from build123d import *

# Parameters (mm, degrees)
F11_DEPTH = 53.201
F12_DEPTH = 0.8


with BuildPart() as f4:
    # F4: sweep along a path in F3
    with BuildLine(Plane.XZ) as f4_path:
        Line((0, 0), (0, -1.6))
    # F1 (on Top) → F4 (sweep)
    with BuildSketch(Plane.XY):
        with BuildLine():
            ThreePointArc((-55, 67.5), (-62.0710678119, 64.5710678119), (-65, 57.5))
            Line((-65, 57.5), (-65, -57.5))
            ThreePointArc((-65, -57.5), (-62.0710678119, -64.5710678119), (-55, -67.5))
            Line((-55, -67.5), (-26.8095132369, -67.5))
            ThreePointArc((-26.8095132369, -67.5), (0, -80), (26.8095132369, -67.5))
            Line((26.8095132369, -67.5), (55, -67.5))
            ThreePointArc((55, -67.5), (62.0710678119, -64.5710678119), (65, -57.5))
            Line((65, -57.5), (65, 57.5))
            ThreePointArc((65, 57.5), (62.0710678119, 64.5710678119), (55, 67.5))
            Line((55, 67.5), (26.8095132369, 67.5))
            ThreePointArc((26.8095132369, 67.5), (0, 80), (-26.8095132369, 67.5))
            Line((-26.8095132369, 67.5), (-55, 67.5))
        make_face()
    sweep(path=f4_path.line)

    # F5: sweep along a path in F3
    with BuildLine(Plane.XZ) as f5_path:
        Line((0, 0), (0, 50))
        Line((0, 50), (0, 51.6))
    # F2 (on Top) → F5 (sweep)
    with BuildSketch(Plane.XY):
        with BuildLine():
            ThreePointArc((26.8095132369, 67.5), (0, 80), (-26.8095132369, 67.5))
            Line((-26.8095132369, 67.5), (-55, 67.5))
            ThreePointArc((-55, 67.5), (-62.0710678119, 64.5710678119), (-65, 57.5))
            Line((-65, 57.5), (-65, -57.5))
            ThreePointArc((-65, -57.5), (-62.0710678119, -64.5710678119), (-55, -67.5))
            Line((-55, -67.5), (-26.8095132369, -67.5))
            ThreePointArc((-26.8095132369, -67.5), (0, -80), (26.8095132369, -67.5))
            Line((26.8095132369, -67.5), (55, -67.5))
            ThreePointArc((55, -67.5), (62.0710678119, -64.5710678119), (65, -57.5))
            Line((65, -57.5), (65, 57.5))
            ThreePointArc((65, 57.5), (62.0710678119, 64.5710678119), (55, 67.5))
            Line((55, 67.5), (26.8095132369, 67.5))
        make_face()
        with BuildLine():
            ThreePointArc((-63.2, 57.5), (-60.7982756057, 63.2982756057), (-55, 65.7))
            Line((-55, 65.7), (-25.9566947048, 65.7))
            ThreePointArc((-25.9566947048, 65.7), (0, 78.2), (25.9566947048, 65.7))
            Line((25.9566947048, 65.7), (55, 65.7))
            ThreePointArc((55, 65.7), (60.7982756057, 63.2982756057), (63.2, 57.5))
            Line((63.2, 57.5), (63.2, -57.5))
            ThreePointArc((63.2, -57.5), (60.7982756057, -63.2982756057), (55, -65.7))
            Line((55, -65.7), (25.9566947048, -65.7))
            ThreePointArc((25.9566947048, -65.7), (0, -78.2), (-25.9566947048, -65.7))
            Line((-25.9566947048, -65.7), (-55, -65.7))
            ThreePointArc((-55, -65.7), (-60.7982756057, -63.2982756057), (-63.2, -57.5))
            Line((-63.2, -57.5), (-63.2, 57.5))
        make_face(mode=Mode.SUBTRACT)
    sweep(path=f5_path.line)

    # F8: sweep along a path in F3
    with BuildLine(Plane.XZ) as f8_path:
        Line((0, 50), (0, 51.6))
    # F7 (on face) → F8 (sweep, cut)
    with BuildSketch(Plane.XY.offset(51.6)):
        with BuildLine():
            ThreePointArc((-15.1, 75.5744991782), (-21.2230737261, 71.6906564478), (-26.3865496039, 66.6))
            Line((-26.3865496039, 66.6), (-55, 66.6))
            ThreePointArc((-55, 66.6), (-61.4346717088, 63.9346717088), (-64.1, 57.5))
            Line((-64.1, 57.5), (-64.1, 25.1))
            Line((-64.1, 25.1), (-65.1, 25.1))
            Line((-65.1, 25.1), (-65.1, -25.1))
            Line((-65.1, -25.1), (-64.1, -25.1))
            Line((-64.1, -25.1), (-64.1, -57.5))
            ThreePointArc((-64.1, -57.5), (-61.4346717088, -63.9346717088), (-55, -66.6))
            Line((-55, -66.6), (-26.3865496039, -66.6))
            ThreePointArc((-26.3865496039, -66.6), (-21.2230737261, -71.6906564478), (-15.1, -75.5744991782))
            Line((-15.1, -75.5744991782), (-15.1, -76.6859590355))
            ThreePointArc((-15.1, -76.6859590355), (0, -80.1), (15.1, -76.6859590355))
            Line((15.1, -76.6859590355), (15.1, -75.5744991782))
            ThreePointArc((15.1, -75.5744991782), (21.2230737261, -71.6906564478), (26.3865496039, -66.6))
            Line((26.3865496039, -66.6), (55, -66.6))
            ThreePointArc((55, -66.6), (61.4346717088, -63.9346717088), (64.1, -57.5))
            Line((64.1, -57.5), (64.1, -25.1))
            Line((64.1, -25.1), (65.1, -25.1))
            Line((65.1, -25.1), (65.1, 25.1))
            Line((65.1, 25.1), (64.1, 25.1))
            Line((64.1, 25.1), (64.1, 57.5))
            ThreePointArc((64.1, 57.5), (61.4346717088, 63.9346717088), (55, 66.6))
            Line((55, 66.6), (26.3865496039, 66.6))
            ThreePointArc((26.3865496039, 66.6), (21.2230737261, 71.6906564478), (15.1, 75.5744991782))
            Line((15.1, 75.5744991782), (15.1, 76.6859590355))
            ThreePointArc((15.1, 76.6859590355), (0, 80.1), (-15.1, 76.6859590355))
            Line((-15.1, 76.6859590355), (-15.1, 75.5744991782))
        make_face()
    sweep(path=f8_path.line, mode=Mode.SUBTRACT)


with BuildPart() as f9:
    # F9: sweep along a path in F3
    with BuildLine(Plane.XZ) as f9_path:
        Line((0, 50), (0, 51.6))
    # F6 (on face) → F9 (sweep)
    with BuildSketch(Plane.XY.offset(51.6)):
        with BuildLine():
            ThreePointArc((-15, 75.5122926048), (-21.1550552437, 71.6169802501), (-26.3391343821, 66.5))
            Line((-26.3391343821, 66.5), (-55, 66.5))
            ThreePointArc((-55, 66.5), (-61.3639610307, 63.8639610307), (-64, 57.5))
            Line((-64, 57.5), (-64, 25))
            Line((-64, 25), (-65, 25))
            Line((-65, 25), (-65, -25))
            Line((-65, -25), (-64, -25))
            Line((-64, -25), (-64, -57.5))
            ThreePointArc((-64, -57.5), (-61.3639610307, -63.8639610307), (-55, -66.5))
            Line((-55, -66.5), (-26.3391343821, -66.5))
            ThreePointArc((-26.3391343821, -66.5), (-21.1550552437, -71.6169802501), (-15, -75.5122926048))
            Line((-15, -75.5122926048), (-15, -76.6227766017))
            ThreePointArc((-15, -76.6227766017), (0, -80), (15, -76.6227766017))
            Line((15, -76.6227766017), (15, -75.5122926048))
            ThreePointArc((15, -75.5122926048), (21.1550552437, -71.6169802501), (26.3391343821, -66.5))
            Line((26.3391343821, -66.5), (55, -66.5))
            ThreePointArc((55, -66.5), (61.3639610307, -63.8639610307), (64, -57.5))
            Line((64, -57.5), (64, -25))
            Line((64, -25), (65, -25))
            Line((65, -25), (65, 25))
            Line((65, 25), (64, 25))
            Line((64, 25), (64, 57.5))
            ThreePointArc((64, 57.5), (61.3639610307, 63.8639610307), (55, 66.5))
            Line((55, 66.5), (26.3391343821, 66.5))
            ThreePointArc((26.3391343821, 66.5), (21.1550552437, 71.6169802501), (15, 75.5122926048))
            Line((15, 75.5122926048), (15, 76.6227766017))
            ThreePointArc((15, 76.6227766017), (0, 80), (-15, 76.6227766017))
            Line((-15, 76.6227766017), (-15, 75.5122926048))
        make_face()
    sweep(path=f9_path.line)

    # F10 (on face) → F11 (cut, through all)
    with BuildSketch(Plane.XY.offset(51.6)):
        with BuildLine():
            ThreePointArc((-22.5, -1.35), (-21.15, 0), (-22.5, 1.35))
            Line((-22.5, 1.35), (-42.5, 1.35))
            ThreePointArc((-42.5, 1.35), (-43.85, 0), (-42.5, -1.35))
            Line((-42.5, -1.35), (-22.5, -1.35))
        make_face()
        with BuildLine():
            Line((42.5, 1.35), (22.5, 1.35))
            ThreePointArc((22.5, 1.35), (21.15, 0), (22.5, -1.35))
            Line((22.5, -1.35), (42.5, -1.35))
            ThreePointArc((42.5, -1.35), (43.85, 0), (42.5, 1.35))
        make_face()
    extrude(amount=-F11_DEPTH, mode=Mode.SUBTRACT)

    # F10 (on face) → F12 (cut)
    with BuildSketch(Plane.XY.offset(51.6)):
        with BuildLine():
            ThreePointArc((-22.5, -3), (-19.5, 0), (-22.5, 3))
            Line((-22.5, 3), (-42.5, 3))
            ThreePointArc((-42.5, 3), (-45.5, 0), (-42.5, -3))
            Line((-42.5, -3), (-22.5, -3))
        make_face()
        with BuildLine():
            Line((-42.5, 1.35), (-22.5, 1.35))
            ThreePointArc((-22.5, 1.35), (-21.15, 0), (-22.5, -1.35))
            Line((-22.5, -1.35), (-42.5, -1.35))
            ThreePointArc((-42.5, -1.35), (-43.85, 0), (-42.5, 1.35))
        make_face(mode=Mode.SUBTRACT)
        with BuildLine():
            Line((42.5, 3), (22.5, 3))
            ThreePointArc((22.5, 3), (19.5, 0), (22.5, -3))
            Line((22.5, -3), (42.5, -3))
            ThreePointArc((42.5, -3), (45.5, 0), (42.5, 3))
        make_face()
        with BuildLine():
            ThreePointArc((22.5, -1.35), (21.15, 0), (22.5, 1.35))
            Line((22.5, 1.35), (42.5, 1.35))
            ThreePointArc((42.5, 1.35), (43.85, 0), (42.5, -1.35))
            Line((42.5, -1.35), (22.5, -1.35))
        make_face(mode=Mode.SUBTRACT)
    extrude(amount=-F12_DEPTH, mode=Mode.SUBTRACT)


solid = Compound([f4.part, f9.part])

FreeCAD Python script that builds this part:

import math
import FreeCAD as App
import Part
import Sketcher
Q = App.Units.Quantity

doc = App.newDocument("Part")
body = doc.addObject("PartDesign::Body", "Body")

# Sketch on XY plane
sketch1 = body.newObject("Sketcher::SketchObject", "Sketch")
sketch1.AttachmentSupport = (doc.getObject("XY_Plane"), [""])
sketch1.MapMode = "FlatFace"
sketch1.addGeometry(Part.ArcOfCircle(Part.Circle(App.Vector(-55, 58, 0), App.Vector(0, 0, 1), 10), math.radians(90), math.radians(180)), False)
sketch1.addGeometry(Part.LineSegment(App.Vector(-65, 58, 0), App.Vector(-65, -58, 0)), False)
sketch1.addGeometry(Part.ArcOfCircle(Part.Circle(App.Vector(-55, -58, 0), App.Vector(0, 0, 1), 10), math.radians(180), math.radians(270)), False)
sketch1.addGeometry(Part.LineSegment(App.Vector(-55, -68, 0), App.Vector(-27, -68, 0)), False)
sketch1.addGeometry(Part.ArcOfCircle(Part.Circle(App.Vector(0, -45, 0), App.Vector(0, 0, 1), 35), math.radians(-140), math.radians(-40)), False)
sketch1.addGeometry(Part.LineSegment(App.Vector(27, -68, 0), App.Vector(55, -68, 0)), False)
sketch1.addGeometry(Part.ArcOfCircle(Part.Circle(App.Vector(55, -58, 0), App.Vector(0, 0, 1), 10), math.radians(-90), math.radians(0)), False)
sketch1.addGeometry(Part.LineSegment(App.Vector(65, -58, 0), App.Vector(65, 58, 0)), False)
sketch1.addGeometry(Part.ArcOfCircle(Part.Circle(App.Vector(55, 58, 0), App.Vector(0, 0, 1), 10), math.radians(0), math.radians(90)), False)
sketch1.addGeometry(Part.LineSegment(App.Vector(55, 68, 0), App.Vector(27, 68, 0)), False)
sketch1.addGeometry(Part.ArcOfCircle(Part.Circle(App.Vector(0, 45, 0), App.Vector(0, 0, 1), 35), math.radians(40), math.radians(140)), False)
sketch1.addGeometry(Part.LineSegment(App.Vector(-27, 68, 0), App.Vector(-55, 68, 0)), False)
sketch1.addConstraint(Sketcher.Constraint("Tangent", 0, 2, 1, 1))
sketch1.addConstraint(Sketcher.Constraint("Tangent", 1, 2, 2, 1))
sketch1.addConstraint(Sketcher.Constraint("Tangent", 2, 2, 3, 1))
sketch1.addConstraint(Sketcher.Constraint("Coincident", 3, 2, 4, 1))
sketch1.addConstraint(Sketcher.Constraint("Coincident", 4, 2, 5, 1))
sketch1.addConstraint(Sketcher.Constraint("Tangent", 5, 2, 6, 1))
sketch1.addConstraint(Sketcher.Constraint("Tangent", 6, 2, 7, 1))
sketch1.addConstraint(Sketcher.Constraint("Tangent", 7, 2, 8, 1))
sketch1.addConstraint(Sketcher.Constraint("Tangent", 8, 2, 9, 1))
sketch1.addConstraint(Sketcher.Constraint("Coincident", 9, 2, 10, 1))
sketch1.addConstraint(Sketcher.Constraint("Coincident", 10, 2, 11, 1))
sketch1.addConstraint(Sketcher.Constraint("Tangent", 11, 2, 0, 1))
sketch1.addConstraint(Sketcher.Constraint("Vertical", 1))
sketch1.addConstraint(Sketcher.Constraint("Horizontal", 3))
sketch1.addConstraint(Sketcher.Constraint("Horizontal", 5))
sketch1.addConstraint(Sketcher.Constraint("Vertical", 7))
sketch1.addConstraint(Sketcher.Constraint("Horizontal", 9))
sketch1.addConstraint(Sketcher.Constraint("Horizontal", 11))
sketch1.addConstraint(Sketcher.Constraint("Equal", 0, 2))
sketch1.addConstraint(Sketcher.Constraint("Equal", 2, 6))
sketch1.addConstraint(Sketcher.Constraint("Equal", 6, 8))
sketch1.addConstraint(Sketcher.Constraint("Equal", 4, 10))
sketch1.addConstraint(Sketcher.Constraint("Symmetric", 0, 3, 6, 3, -1, 1))
sketch1.addConstraint(Sketcher.Constraint("Symmetric", 4, 3, 10, 3, -1, 1))
sketch1.addConstraint(Sketcher.Constraint("Symmetric", 3, 2, 4, 2, -2))
sketch1.addConstraint(Sketcher.Constraint("Horizontal", 0, 3, 8, 3))
sketch1.addConstraint(Sketcher.Constraint("Radius", 0, Q("10 mm")))
sketch1.addConstraint(Sketcher.Constraint("Radius", 4, Q("35 mm")))
sketch1.addConstraint(Sketcher.Constraint("DistanceY", 1, 2, 1, 1, Q("115 mm")))
sketch1.addConstraint(Sketcher.Constraint("DistanceX", 0, 3, -1, 1, Q("55 mm")))
sketch1.addConstraint(Sketcher.Constraint("DistanceY", 4, 3, -1, 1, Q("45 mm")))

# Sketch on XZ plane
sketch2 = body.newObject("Sketcher::SketchObject", "Sketch001")
sketch2.AttachmentSupport = (doc.getObject("XZ_Plane"), [""])
sketch2.MapMode = "FlatFace"
sketch2.addGeometry(Part.LineSegment(App.Vector(0, 0, 0), App.Vector(0, -1.6, 0)), False)
sketch2.addConstraint(Sketcher.Constraint("Vertical", 0))
sketch2.addConstraint(Sketcher.Constraint("Coincident", 0, 1, -1, 1))
sketch2.addConstraint(Sketcher.Constraint("DistanceY", 0, 2, 0, 1, Q("1.6 mm")))
doc.recompute()

additivepipe = body.newObject("PartDesign::AdditivePipe", "AdditivePipe")
additivepipe.Profile = sketch1
additivepipe.Spine = (sketch2, ["Edge1"])

# Sketch on XY plane
sketch3 = body.newObject("Sketcher::SketchObject", "Sketch002")
sketch3.AttachmentSupport = (doc.getObject("XY_Plane"), [""])
sketch3.MapMode = "FlatFace"
sketch3.addGeometry(Part.ArcOfCircle(Part.Circle(App.Vector(0, 45, 0), App.Vector(0, 0, 1), 35), math.radians(40), math.radians(140)), False)
sketch3.addGeometry(Part.LineSegment(App.Vector(-27, 68, 0), App.Vector(-55, 68, 0)), False)
sketch3.addGeometry(Part.ArcOfCircle(Part.Circle(App.Vector(-55, 58, 0), App.Vector(0, 0, 1), 10), math.radians(90), math.radians(180)), False)
sketch3.addGeometry(Part.LineSegment(App.Vector(-65, 58, 0), App.Vector(-65, -58, 0)), False)
sketch3.addGeometry(Part.ArcOfCircle(Part.Circle(App.Vector(-55, -58, 0), App.Vector(0, 0, 1), 10), math.radians(180), math.radians(270)), False)
sketch3.addGeometry(Part.LineSegment(App.Vector(-55, -68, 0), App.Vector(-27, -68, 0)), False)
sketch3.addGeometry(Part.ArcOfCircle(Part.Circle(App.Vector(0, -45, 0), App.Vector(0, 0, 1), 35), math.radians(-140), math.radians(-40)), False)
sketch3.addGeometry(Part.LineSegment(App.Vector(27, -68, 0), App.Vector(55, -68, 0)), False)
sketch3.addGeometry(Part.ArcOfCircle(Part.Circle(App.Vector(55, -58, 0), App.Vector(0, 0, 1), 10), math.radians(-90), math.radians(0)), False)
sketch3.addGeometry(Part.LineSegment(App.Vector(65, -58, 0), App.Vector(65, 58, 0)), False)
sketch3.addGeometry(Part.ArcOfCircle(Part.Circle(App.Vector(55, 58, 0), App.Vector(0, 0, 1), 10), math.radians(0), math.radians(90)), False)
sketch3.addGeometry(Part.LineSegment(App.Vector(55, 68, 0), App.Vector(27, 68, 0)), False)
sketch3.addGeometry(Part.LineSegment(App.Vector(-63, -58, 0), App.Vector(-63, 58, 0)), False)
sketch3.addGeometry(Part.ArcOfCircle(Part.Circle(App.Vector(-55, 58, 0), App.Vector(0, 0, 1), 8), math.radians(90), math.radians(180)), False)
sketch3.addGeometry(Part.LineSegment(App.Vector(-55, 66, 0), App.Vector(-26, 66, 0)), False)
sketch3.addGeometry(Part.ArcOfCircle(Part.Circle(App.Vector(0, 45, 0), App.Vector(0, 0, 1), 33), math.radians(39), math.radians(141)), False)
sketch3.addGeometry(Part.LineSegment(App.Vector(26, 66, 0), App.Vector(55, 66, 0)), False)
sketch3.addGeometry(Part.ArcOfCircle(Part.Circle(App.Vector(55, 58, 0), App.Vector(0, 0, 1), 8), math.radians(0), math.radians(90)), False)
sketch3.addGeometry(Part.LineSegment(App.Vector(63, 58, 0), App.Vector(63, -58, 0)), False)
sketch3.addGeometry(Part.ArcOfCircle(Part.Circle(App.Vector(55, -58, 0), App.Vector(0, 0, 1), 8), math.radians(-90), math.radians(0)), False)
sketch3.addGeometry(Part.LineSegment(App.Vector(55, -66, 0), App.Vector(26, -66, 0)), False)
sketch3.addGeometry(Part.ArcOfCircle(Part.Circle(App.Vector(0, -45, 0), App.Vector(0, 0, 1), 33), math.radians(-141), math.radians(-39)), False)
sketch3.addGeometry(Part.LineSegment(App.Vector(-26, -66, 0), App.Vector(-55, -66, 0)), False)
sketch3.addGeometry(Part.ArcOfCircle(Part.Circle(App.Vector(-55, -58, 0), App.Vector(0, 0, 1), 8), math.radians(180), math.radians(270)), False)
sketch3.addConstraint(Sketcher.Constraint("Coincident", 0, 2, 1, 1))
sketch3.addConstraint(Sketcher.Constraint("Tangent", 1, 2, 2, 1))
sketch3.addConstraint(Sketcher.Constraint("Tangent", 2, 2, 3, 1))
sketch3.addConstraint(Sketcher.Constraint("Tangent", 3, 2, 4, 1))
sketch3.addConstraint(Sketcher.Constraint("Tangent", 4, 2, 5, 1))
sketch3.addConstraint(Sketcher.Constraint("Coincident", 5, 2, 6, 1))
sketch3.addConstraint(Sketcher.Constraint("Coincident", 6, 2, 7, 1))
sketch3.addConstraint(Sketcher.Constraint("Tangent", 7, 2, 8, 1))
sketch3.addConstraint(Sketcher.Constraint("Tangent", 8, 2, 9, 1))
sketch3.addConstraint(Sketcher.Constraint("Tangent", 9, 2, 10, 1))
sketch3.addConstraint(Sketcher.Constraint("Tangent", 10, 2, 11, 1))
sketch3.addConstraint(Sketcher.Constraint("Coincident", 11, 2, 0, 1))
sketch3.addConstraint(Sketcher.Constraint("Tangent", 12, 2, 13, 2))
sketch3.addConstraint(Sketcher.Constraint("Tangent", 13, 1, 14, 1))
sketch3.addConstraint(Sketcher.Constraint("Coincident", 14, 2, 15, 2))
sketch3.addConstraint(Sketcher.Constraint("Coincident", 15, 1, 16, 1))
sketch3.addConstraint(Sketcher.Constraint("Tangent", 16, 2, 17, 2))
sketch3.addConstraint(Sketcher.Constraint("Tangent", 17, 1, 18, 1))
sketch3.addConstraint(Sketcher.Constraint("Tangent", 18, 2, 19, 2))
sketch3.addConstraint(Sketcher.Constraint("Tangent", 19, 1, 20, 1))
sketch3.addConstraint(Sketcher.Constraint("Coincident", 20, 2, 21, 2))
sketch3.addConstraint(Sketcher.Constraint("Coincident", 21, 1, 22, 1))
sketch3.addConstraint(Sketcher.Constraint("Tangent", 22, 2, 23, 2))
sketch3.addConstraint(Sketcher.Constraint("Tangent", 23, 1, 12, 1))
sketch3.addConstraint(Sketcher.Constraint("Horizontal", 1))
sketch3.addConstraint(Sketcher.Constraint("Vertical", 3))
sketch3.addConstraint(Sketcher.Constraint("Horizontal", 5))
sketch3.addConstraint(Sketcher.Constraint("Horizontal", 7))
sketch3.addConstraint(Sketcher.Constraint("Vertical", 9))
sketch3.addConstraint(Sketcher.Constraint("Horizontal", 11))
sketch3.addConstraint(Sketcher.Constraint("Vertical", 12))
sketch3.addConstraint(Sketcher.Constraint("Horizontal", 14))
sketch3.addConstraint(Sketcher.Constraint("Horizontal", 16))
sketch3.addConstraint(Sketcher.Constraint("Vertical", 18))
sketch3.addConstraint(Sketcher.Constraint("Horizontal", 20))
sketch3.addConstraint(Sketcher.Constraint("Horizontal", 22))
sketch3.addConstraint(Sketcher.Constraint("Coincident", 13, 3, 2, 3))
sketch3.addConstraint(Sketcher.Constraint("Coincident", 15, 3, 0, 3))
sketch3.addConstraint(Sketcher.Constraint("Coincident", 17, 3, 10, 3))
sketch3.addConstraint(Sketcher.Constraint("Coincident", 19, 3, 8, 3))
sketch3.addConstraint(Sketcher.Constraint("Coincident", 21, 3, 6, 3))
sketch3.addConstraint(Sketcher.Constraint("Coincident", 23, 3, 4, 3))
sketch3.addConstraint(Sketcher.Constraint("Equal", 2, 4))
sketch3.addConstraint(Sketcher.Constraint("Equal", 0, 6))
sketch3.addConstraint(Sketcher.Constraint("Equal", 4, 8))
sketch3.addConstraint(Sketcher.Constraint("Equal", 8, 10))
sketch3.addConstraint(Sketcher.Constraint("Equal", 13, 17))
sketch3.addConstraint(Sketcher.Constraint("Equal", 15, 21))
sketch3.addConstraint(Sketcher.Constraint("Symmetric", 0, 3, 6, 3, -1, 1))
sketch3.addConstraint(Sketcher.Constraint("Symmetric", 2, 3, 8, 3, -1, 1))
sketch3.addConstraint(Sketcher.Constraint("Symmetric", 5, 2, 6, 2, -2))
sketch3.addConstraint(Sketcher.Constraint("Horizontal", 2, 3, 10, 3))
sketch3.addConstraint(Sketcher.Constraint("Radius", 0, Q("35 mm")))
sketch3.addConstraint(Sketcher.Constraint("Radius", 2, Q("10 mm")))
sketch3.addConstraint(Sketcher.Constraint("Radius", 13, Q("8.2 mm")))
sketch3.addConstraint(Sketcher.Constraint("Radius", 15, Q("33.2 mm")))
sketch3.addConstraint(Sketcher.Constraint("DistanceY", 3, 2, 3, 1, Q("115 mm")))
sketch3.addConstraint(Sketcher.Constraint("DistanceY", -1, 1, 0, 3, Q("45 mm")))
sketch3.addConstraint(Sketcher.Constraint("DistanceX", 2, 3, -1, 1, Q("55 mm")))

# Sketch on XZ plane
sketch4 = body.newObject("Sketcher::SketchObject", "Sketch003")
sketch4.AttachmentSupport = (doc.getObject("XZ_Plane"), [""])
sketch4.MapMode = "FlatFace"
sketch4.addGeometry(Part.LineSegment(App.Vector(0, 0, 0), App.Vector(0, 52, 0)), False)
sketch4.addConstraint(Sketcher.Constraint("Vertical", 0))
sketch4.addConstraint(Sketcher.Constraint("Coincident", 0, 1, -1, 1))
sketch4.addConstraint(Sketcher.Constraint("DistanceY", 0, 1, 0, 2, Q("51.6 mm")))
doc.recompute()

additivepipe2 = body.newObject("PartDesign::AdditivePipe", "AdditivePipe001")
additivepipe2.Profile = sketch3
additivepipe2.Spine = (sketch4, ["Edge1"])

# Sketch on XY plane
sketch5 = body.newObject("Sketcher::SketchObject", "Sketch004")
sketch5.AttachmentSupport = (doc.getObject("XY_Plane"), [""])
sketch5.MapMode = "FlatFace"
sketch5.AttachmentOffset = App.Placement(App.Vector(0, 0, 51.6), App.Rotation())
sketch5.addGeometry(Part.ArcOfCircle(Part.Circle(App.Vector(0, 45, 0), App.Vector(0, 0, 1), 34.1), math.radians(116), math.radians(141)), False)
sketch5.addGeometry(Part.LineSegment(App.Vector(-26.4, 66.6, 0), App.Vector(-55, 66.6, 0)), False)
sketch5.addGeometry(Part.ArcOfCircle(Part.Circle(App.Vector(-55, 57.5, 0), App.Vector(0, 0, 1), 9.1), math.radians(90), math.radians(180)), False)
sketch5.addGeometry(Part.LineSegment(App.Vector(-64.1, 57.5, 0), App.Vector(-64.1, 25.1, 0)), False)
sketch5.addGeometry(Part.LineSegment(App.Vector(-64.1, 25.1, 0), App.Vector(-65.1, 25.1, 0)), False)
sketch5.addGeometry(Part.LineSegment(App.Vector(-65.1, 25.1, 0), App.Vector(-65.1, -25.1, 0)), False)
sketch5.addGeometry(Part.LineSegment(App.Vector(-65.1, -25.1, 0), App.Vector(-64.1, -25.1, 0)), False)
sketch5.addGeometry(Part.LineSegment(App.Vector(-64.1, -25.1, 0), App.Vector(-64.1, -57.5, 0)), False)
sketch5.addGeometry(Part.ArcOfCircle(Part.Circle(App.Vector(-55, -57.5, 0), App.Vector(0, 0, 1), 9.1), math.radians(180), math.radians(270)), False)
sketch5.addGeometry(Part.LineSegment(App.Vector(-55, -66.6, 0), App.Vector(-26.4, -66.6, 0)), False)
sketch5.addGeometry(Part.ArcOfCircle(Part.Circle(App.Vector(0, -45, 0), App.Vector(0, 0, 1), 34.1), math.radians(-141), math.radians(-116)), False)
sketch5.addGeometry(Part.LineSegment(App.Vector(-15.1, -75.6, 0), App.Vector(-15.1, -76.7, 0)), False)
sketch5.addGeometry(Part.ArcOfCircle(Part.Circle(App.Vector(0, -45, 0), App.Vector(0, 0, 1), 35.1), math.radians(-115), math.radians(-65)), False)
sketch5.addGeometry(Part.LineSegment(App.Vector(15.1, -76.7, 0), App.Vector(15.1, -75.6, 0)), False)
sketch5.addGeometry(Part.ArcOfCircle(Part.Circle(App.Vector(0, -45, 0), App.Vector(0, 0, 1), 34.1), math.radians(-64), math.radians(-39)), False)
sketch5.addGeometry(Part.LineSegment(App.Vector(26.4, -66.6, 0), App.Vector(55, -66.6, 0)), False)
sketch5.addGeometry(Part.ArcOfCircle(Part.Circle(App.Vector(55, -57.5, 0), App.Vector(0, 0, 1), 9.1), math.radians(-90), math.radians(0)), False)
sketch5.addGeometry(Part.LineSegment(App.Vector(64.1, -57.5, 0), App.Vector(64.1, -25.1, 0)), False)
sketch5.addGeometry(Part.LineSegment(App.Vector(64.1, -25.1, 0), App.Vector(65.1, -25.1, 0)), False)
sketch5.addGeometry(Part.LineSegment(App.Vector(65.1, -25.1, 0), App.Vector(65.1, 25.1, 0)), False)
sketch5.addGeometry(Part.LineSegment(App.Vector(65.1, 25.1, 0), App.Vector(64.1, 25.1, 0)), False)
sketch5.addGeometry(Part.LineSegment(App.Vector(64.1, 25.1, 0), App.Vector(64.1, 57.5, 0)), False)
sketch5.addGeometry(Part.ArcOfCircle(Part.Circle(App.Vector(55, 57.5, 0), App.Vector(0, 0, 1), 9.1), math.radians(0), math.radians(90)), False)
sketch5.addGeometry(Part.LineSegment(App.Vector(55, 66.6, 0), App.Vector(26.4, 66.6, 0)), False)
sketch5.addGeometry(Part.ArcOfCircle(Part.Circle(App.Vector(0, 45, 0), App.Vector(0, 0, 1), 34.1), math.radians(39), math.radians(64)), False)
sketch5.addGeometry(Part.LineSegment(App.Vector(15.1, 75.6, 0), App.Vector(15.1, 76.7, 0)), False)
sketch5.addGeometry(Part.ArcOfCircle(Part.Circle(App.Vector(0, 45, 0), App.Vector(0, 0, 1), 35.1), math.radians(65), math.radians(115)), False)
sketch5.addGeometry(Part.LineSegment(App.Vector(-15.1, 76.7, 0), App.Vector(-15.1, 75.6, 0)), False)
sketch5.addConstraint(Sketcher.Constraint("Coincident", 0, 2, 1, 1))
sketch5.addConstraint(Sketcher.Constraint("Tangent", 1, 2, 2, 1))
sketch5.addConstraint(Sketcher.Constraint("Tangent", 2, 2, 3, 1))
sketch5.addConstraint(Sketcher.Constraint("Coincident", 3, 2, 4, 1))
sketch5.addConstraint(Sketcher.Constraint("Coincident", 4, 2, 5, 1))
sketch5.addConstraint(Sketcher.Constraint("Coincident", 5, 2, 6, 1))
sketch5.addConstraint(Sketcher.Constraint("Coincident", 6, 2, 7, 1))
sketch5.addConstraint(Sketcher.Constraint("Tangent", 7, 2, 8, 1))
sketch5.addConstraint(Sketcher.Constraint("Tangent", 8, 2, 9, 1))
sketch5.addConstraint(Sketcher.Constraint("Coincident", 9, 2, 10, 1))
sketch5.addConstraint(Sketcher.Constraint("Coincident", 10, 2, 11, 1))
sketch5.addConstraint(Sketcher.Constraint("Coincident", 11, 2, 12, 1))
sketch5.addConstraint(Sketcher.Constraint("Coincident", 12, 2, 13, 1))
sketch5.addConstraint(Sketcher.Constraint("Coincident", 13, 2, 14, 1))
sketch5.addConstraint(Sketcher.Constraint("Coincident", 14, 2, 15, 1))
sketch5.addConstraint(Sketcher.Constraint("Tangent", 15, 2, 16, 1))
sketch5.addConstraint(Sketcher.Constraint("Tangent", 16, 2, 17, 1))
sketch5.addConstraint(Sketcher.Constraint("Coincident", 17, 2, 18, 1))
sketch5.addConstraint(Sketcher.Constraint("Coincident", 18, 2, 19, 1))
sketch5.addConstraint(Sketcher.Constraint("Coincident", 19, 2, 20, 1))
sketch5.addConstraint(Sketcher.Constraint("Coincident", 20, 2, 21, 1))
sketch5.addConstraint(Sketcher.Constraint("Tangent", 21, 2, 22, 1))
sketch5.addConstraint(Sketcher.Constraint("Tangent", 22, 2, 23, 1))
sketch5.addConstraint(Sketcher.Constraint("Coincident", 23, 2, 24, 1))
sketch5.addConstraint(Sketcher.Constraint("Coincident", 24, 2, 25, 1))
sketch5.addConstraint(Sketcher.Constraint("Coincident", 25, 2, 26, 1))
sketch5.addConstraint(Sketcher.Constraint("Coincident", 26, 2, 27, 1))
sketch5.addConstraint(Sketcher.Constraint("Coincident", 27, 2, 0, 1))
sketch5.addConstraint(Sketcher.Constraint("Horizontal", 1))
sketch5.addConstraint(Sketcher.Constraint("Vertical", 3))
sketch5.addConstraint(Sketcher.Constraint("Horizontal", 4))
sketch5.addConstraint(Sketcher.Constraint("Vertical", 5))
sketch5.addConstraint(Sketcher.Constraint("Horizontal", 6))
sketch5.addConstraint(Sketcher.Constraint("Vertical", 7))
sketch5.addConstraint(Sketcher.Constraint("Horizontal", 9))
sketch5.addConstraint(Sketcher.Constraint("Vertical", 11))
sketch5.addConstraint(Sketcher.Constraint("Vertical", 13))
sketch5.addConstraint(Sketcher.Constraint("Horizontal", 15))
sketch5.addConstraint(Sketcher.Constraint("Vertical", 17))
sketch5.addConstraint(Sketcher.Constraint("Horizontal", 18))
sketch5.addConstraint(Sketcher.Constraint("Vertical", 19))
sketch5.addConstraint(Sketcher.Constraint("Horizontal", 20))
sketch5.addConstraint(Sketcher.Constraint("Vertical", 21))
sketch5.addConstraint(Sketcher.Constraint("Horizontal", 23))
sketch5.addConstraint(Sketcher.Constraint("Vertical", 25))
sketch5.addConstraint(Sketcher.Constraint("Vertical", 27))
sketch5.addConstraint(Sketcher.Constraint("Coincident", 12, 3, 10, 3))
sketch5.addConstraint(Sketcher.Constraint("Coincident", 14, 3, 10, 3))
sketch5.addConstraint(Sketcher.Constraint("Coincident", 24, 3, 0, 3))
sketch5.addConstraint(Sketcher.Constraint("Coincident", 26, 3, 0, 3))
sketch5.addConstraint(Sketcher.Constraint("Equal", 2, 8))
sketch5.addConstraint(Sketcher.Constraint("Equal", 0, 10))
sketch5.addConstraint(Sketcher.Constraint("Equal", 10, 14))
sketch5.addConstraint(Sketcher.Constraint("Equal", 8, 16))
sketch5.addConstraint(Sketcher.Constraint("Equal", 16, 22))
sketch5.addConstraint(Sketcher.Constraint("Equal", 14, 24))
sketch5.addConstraint(Sketcher.Constraint("Equal", 12, 26))
sketch5.addConstraint(Sketcher.Constraint("Symmetric", 0, 3, 10, 3, -1, 1))
sketch5.addConstraint(Sketcher.Constraint("Symmetric", 2, 3, 16, 3, -1, 1))
sketch5.addConstraint(Sketcher.Constraint("Symmetric", 8, 3, 22, 3, -1, 1))
sketch5.addConstraint(Sketcher.Constraint("Symmetric", 4, 2, 18, 2, -1, 1))
sketch5.addConstraint(Sketcher.Constraint("Symmetric", 8, 3, 16, 3, -2))
sketch5.addConstraint(Sketcher.Constraint("Symmetric", 11, 2, 12, 2, -2))
sketch5.addConstraint(Sketcher.Constraint("Horizontal", 6, 2, 17, 2))
sketch5.addConstraint(Sketcher.Constraint("Horizontal", 4, 2, 19, 2))
sketch5.addConstraint(Sketcher.Constraint("Horizontal", 25, 2, 26, 2))
sketch5.addConstraint(Sketcher.Constraint("Vertical", 13, 2, 24, 2))
sketch5.addConstraint(Sketcher.Constraint("Radius", 0, Q("34.1 mm")))
sketch5.addConstraint(Sketcher.Constraint("Radius", 2, Q("9.1 mm")))
sketch5.addConstraint(Sketcher.Constraint("Radius", 12, Q("35.1 mm")))
sketch5.addConstraint(Sketcher.Constraint("DistanceX", 4, 2, 4, 1, Q("1 mm")))
sketch5.addConstraint(Sketcher.Constraint("DistanceY", 3, 2, 3, 1, Q("32.4 mm")))
sketch5.addConstraint(Sketcher.Constraint("DistanceY", 5, 2, 5, 1, Q("50.2 mm")))
sketch5.addConstraint(Sketcher.Constraint("DistanceY", -1, 1, 0, 3, Q("45 mm")))
sketch5.addConstraint(Sketcher.Constraint("DistanceX", 2, 3, -1, 1, Q("55 mm")))
sketch5.addConstraint(Sketcher.Constraint("DistanceX", 13, 2, 16, 2, Q("49 mm")))

# Sketch on XZ plane
sketch6 = body.newObject("Sketcher::SketchObject", "Sketch005")
sketch6.AttachmentSupport = (doc.getObject("XZ_Plane"), [""])
sketch6.MapMode = "FlatFace"
sketch6.addGeometry(Part.LineSegment(App.Vector(0, 50, 0), App.Vector(0, 51.6, 0)), False)
sketch6.addConstraint(Sketcher.Constraint("Vertical", 0))
sketch6.addConstraint(Sketcher.Constraint("PointOnObject", 0, 1, -2))
sketch6.addConstraint(Sketcher.Constraint("DistanceY", 0, 1, 0, 2, Q("1.6 mm")))
sketch6.addConstraint(Sketcher.Constraint("DistanceY", -1, 1, 0, 1, Q("50 mm")))
doc.recompute()

subtractivepipe = body.newObject("PartDesign::SubtractivePipe", "SubtractivePipe")
subtractivepipe.Profile = sketch5
subtractivepipe.Spine = (sketch6, ["Edge1"])
body2 = doc.addObject("PartDesign::Body", "Body001")

# Sketch on XY plane
sketch7 = body2.newObject("Sketcher::SketchObject", "Sketch006")
sketch7.AttachmentSupport = (doc.getObject("XY_Plane001"), [""])
sketch7.MapMode = "FlatFace"
sketch7.AttachmentOffset = App.Placement(App.Vector(0, 0, 51.6), App.Rotation())
sketch7.addGeometry(Part.ArcOfCircle(Part.Circle(App.Vector(0, 45, 0), App.Vector(0, 0, 1), 34), math.radians(116), math.radians(141)), False)
sketch7.addGeometry(Part.LineSegment(App.Vector(-26.3, 66.5, 0), App.Vector(-55, 66.5, 0)), False)
sketch7.addGeometry(Part.ArcOfCircle(Part.Circle(App.Vector(-55, 57.5, 0), App.Vector(0, 0, 1), 9), math.radians(90), math.radians(180)), False)
sketch7.addGeometry(Part.LineSegment(App.Vector(-64, 57.5, 0), App.Vector(-64, 25, 0)), False)
sketch7.addGeometry(Part.LineSegment(App.Vector(-64, 25, 0), App.Vector(-65, 25, 0)), False)
sketch7.addGeometry(Part.LineSegment(App.Vector(-65, 25, 0), App.Vector(-65, -25, 0)), False)
sketch7.addGeometry(Part.LineSegment(App.Vector(-65, -25, 0), App.Vector(-64, -25, 0)), False)
sketch7.addGeometry(Part.LineSegment(App.Vector(-64, -25, 0), App.Vector(-64, -57.5, 0)), False)
sketch7.addGeometry(Part.ArcOfCircle(Part.Circle(App.Vector(-55, -57.5, 0), App.Vector(0, 0, 1), 9), math.radians(180), math.radians(270)), False)
sketch7.addGeometry(Part.LineSegment(App.Vector(-55, -66.5, 0), App.Vector(-26.3, -66.5, 0)), False)
sketch7.addGeometry(Part.ArcOfCircle(Part.Circle(App.Vector(0, -45, 0), App.Vector(0, 0, 1), 34), math.radians(-141), math.radians(-116)), False)
sketch7.addGeometry(Part.LineSegment(App.Vector(-15, -75.5, 0), App.Vector(-15, -76.6, 0)), False)
sketch7.addGeometry(Part.ArcOfCircle(Part.Circle(App.Vector(0, -45, 0), App.Vector(0, 0, 1), 35), math.radians(-115), math.radians(-65)), False)
sketch7.addGeometry(Part.LineSegment(App.Vector(15, -76.6, 0), App.Vector(15, -75.5, 0)), False)
sketch7.addGeometry(Part.ArcOfCircle(Part.Circle(App.Vector(0, -45, 0), App.Vector(0, 0, 1), 34), math.radians(-64), math.radians(-39)), False)
sketch7.addGeometry(Part.LineSegment(App.Vector(26.3, -66.5, 0), App.Vector(55, -66.5, 0)), False)
sketch7.addGeometry(Part.ArcOfCircle(Part.Circle(App.Vector(55, -57.5, 0), App.Vector(0, 0, 1), 9), math.radians(-90), math.radians(0)), False)
sketch7.addGeometry(Part.LineSegment(App.Vector(64, -57.5, 0), App.Vector(64, -25, 0)), False)
sketch7.addGeometry(Part.LineSegment(App.Vector(64, -25, 0), App.Vector(65, -25, 0)), False)
sketch7.addGeometry(Part.LineSegment(App.Vector(65, -25, 0), App.Vector(65, 25, 0)), False)
sketch7.addGeometry(Part.LineSegment(App.Vector(65, 25, 0), App.Vector(64, 25, 0)), False)
sketch7.addGeometry(Part.LineSegment(App.Vector(64, 25, 0), App.Vector(64, 57.5, 0)), False)
sketch7.addGeometry(Part.ArcOfCircle(Part.Circle(App.Vector(55, 57.5, 0), App.Vector(0, 0, 1), 9), math.radians(0), math.radians(90)), False)
sketch7.addGeometry(Part.LineSegment(App.Vector(55, 66.5, 0), App.Vector(26.3, 66.5, 0)), False)
sketch7.addGeometry(Part.ArcOfCircle(Part.Circle(App.Vector(0, 45, 0), App.Vector(0, 0, 1), 34), math.radians(39), math.radians(64)), False)
sketch7.addGeometry(Part.LineSegment(App.Vector(15, 75.5, 0), App.Vector(15, 76.6, 0)), False)
sketch7.addGeometry(Part.ArcOfCircle(Part.Circle(App.Vector(0, 45, 0), App.Vector(0, 0, 1), 35), math.radians(65), math.radians(115)), False)
sketch7.addGeometry(Part.LineSegment(App.Vector(-15, 76.6, 0), App.Vector(-15, 75.5, 0)), False)
sketch7.addConstraint(Sketcher.Constraint("Coincident", 0, 2, 1, 1))
sketch7.addConstraint(Sketcher.Constraint("Tangent", 1, 2, 2, 1))
sketch7.addConstraint(Sketcher.Constraint("Tangent", 2, 2, 3, 1))
sketch7.addConstraint(Sketcher.Constraint("Coincident", 3, 2, 4, 1))
sketch7.addConstraint(Sketcher.Constraint("Coincident", 4, 2, 5, 1))
sketch7.addConstraint(Sketcher.Constraint("Coincident", 5, 2, 6, 1))
sketch7.addConstraint(Sketcher.Constraint("Coincident", 6, 2, 7, 1))
sketch7.addConstraint(Sketcher.Constraint("Tangent", 7, 2, 8, 1))
sketch7.addConstraint(Sketcher.Constraint("Tangent", 8, 2, 9, 1))
sketch7.addConstraint(Sketcher.Constraint("Coincident", 9, 2, 10, 1))
sketch7.addConstraint(Sketcher.Constraint("Coincident", 10, 2, 11, 1))
sketch7.addConstraint(Sketcher.Constraint("Coincident", 11, 2, 12, 1))
sketch7.addConstraint(Sketcher.Constraint("Coincident", 12, 2, 13, 1))
sketch7.addConstraint(Sketcher.Constraint("Coincident", 13, 2, 14, 1))
sketch7.addConstraint(Sketcher.Constraint("Coincident", 14, 2, 15, 1))
sketch7.addConstraint(Sketcher.Constraint("Tangent", 15, 2, 16, 1))
sketch7.addConstraint(Sketcher.Constraint("Tangent", 16, 2, 17, 1))
sketch7.addConstraint(Sketcher.Constraint("Coincident", 17, 2, 18, 1))
sketch7.addConstraint(Sketcher.Constraint("Coincident", 18, 2, 19, 1))
sketch7.addConstraint(Sketcher.Constraint("Coincident", 19, 2, 20, 1))
sketch7.addConstraint(Sketcher.Constraint("Coincident", 20, 2, 21, 1))
sketch7.addConstraint(Sketcher.Constraint("Tangent", 21, 2, 22, 1))
sketch7.addConstraint(Sketcher.Constraint("Tangent", 22, 2, 23, 1))
sketch7.addConstraint(Sketcher.Constraint("Coincident", 23, 2, 24, 1))
sketch7.addConstraint(Sketcher.Constraint("Coincident", 24, 2, 25, 1))
sketch7.addConstraint(Sketcher.Constraint("Coincident", 25, 2, 26, 1))
sketch7.addConstraint(Sketcher.Constraint("Coincident", 26, 2, 27, 1))
sketch7.addConstraint(Sketcher.Constraint("Coincident", 27, 2, 0, 1))
sketch7.addConstraint(Sketcher.Constraint("Horizontal", 1))
sketch7.addConstraint(Sketcher.Constraint("Vertical", 3))
sketch7.addConstraint(Sketcher.Constraint("Horizontal", 4))
sketch7.addConstraint(Sketcher.Constraint("Vertical", 5))
sketch7.addConstraint(Sketcher.Constraint("Horizontal", 6))
sketch7.addConstraint(Sketcher.Constraint("Vertical", 7))
sketch7.addConstraint(Sketcher.Constraint("Horizontal", 9))
sketch7.addConstraint(Sketcher.Constraint("Vertical", 11))
sketch7.addConstraint(Sketcher.Constraint("Vertical", 13))
sketch7.addConstraint(Sketcher.Constraint("Horizontal", 15))
sketch7.addConstraint(Sketcher.Constraint("Vertical", 17))
sketch7.addConstraint(Sketcher.Constraint("Horizontal", 18))
sketch7.addConstraint(Sketcher.Constraint("Vertical", 19))
sketch7.addConstraint(Sketcher.Constraint("Horizontal", 20))
sketch7.addConstraint(Sketcher.Constraint("Vertical", 21))
sketch7.addConstraint(Sketcher.Constraint("Horizontal", 23))
sketch7.addConstraint(Sketcher.Constraint("Vertical", 25))
sketch7.addConstraint(Sketcher.Constraint("Vertical", 27))
sketch7.addConstraint(Sketcher.Constraint("Coincident", 12, 3, 10, 3))
sketch7.addConstraint(Sketcher.Constraint("Coincident", 14, 3, 10, 3))
sketch7.addConstraint(Sketcher.Constraint("Coincident", 24, 3, 0, 3))
sketch7.addConstraint(Sketcher.Constraint("Coincident", 26, 3, 0, 3))
sketch7.addConstraint(Sketcher.Constraint("Equal", 2, 8))
sketch7.addConstraint(Sketcher.Constraint("Equal", 0, 10))
sketch7.addConstraint(Sketcher.Constraint("Equal", 10, 14))
sketch7.addConstraint(Sketcher.Constraint("Equal", 8, 16))
sketch7.addConstraint(Sketcher.Constraint("Equal", 16, 22))
sketch7.addConstraint(Sketcher.Constraint("Equal", 14, 24))
sketch7.addConstraint(Sketcher.Constraint("Equal", 12, 26))
sketch7.addConstraint(Sketcher.Constraint("Symmetric", 0, 3, 10, 3, -1, 1))
sketch7.addConstraint(Sketcher.Constraint("Symmetric", 2, 3, 16, 3, -1, 1))
sketch7.addConstraint(Sketcher.Constraint("Symmetric", 8, 3, 22, 3, -1, 1))
sketch7.addConstraint(Sketcher.Constraint("Symmetric", 4, 2, 18, 2, -1, 1))
sketch7.addConstraint(Sketcher.Constraint("Symmetric", 8, 3, 16, 3, -2))
sketch7.addConstraint(Sketcher.Constraint("Symmetric", 11, 2, 12, 2, -2))
sketch7.addConstraint(Sketcher.Constraint("Horizontal", 6, 2, 17, 2))
sketch7.addConstraint(Sketcher.Constraint("Horizontal", 4, 2, 19, 2))
sketch7.addConstraint(Sketcher.Constraint("Horizontal", 25, 2, 26, 2))
sketch7.addConstraint(Sketcher.Constraint("Vertical", 13, 2, 24, 2))
sketch7.addConstraint(Sketcher.Constraint("Radius", 0, Q("34 mm")))
sketch7.addConstraint(Sketcher.Constraint("Radius", 2, Q("9 mm")))
sketch7.addConstraint(Sketcher.Constraint("Radius", 12, Q("35 mm")))
sketch7.addConstraint(Sketcher.Constraint("DistanceX", 4, 2, 4, 1, Q("1 mm")))
sketch7.addConstraint(Sketcher.Constraint("DistanceY", 5, 2, 5, 1, Q("50 mm")))
sketch7.addConstraint(Sketcher.Constraint("DistanceY", 3, 2, 3, 1, Q("32.5 mm")))
sketch7.addConstraint(Sketcher.Constraint("DistanceY", -1, 1, 0, 3, Q("45 mm")))
sketch7.addConstraint(Sketcher.Constraint("DistanceX", 2, 3, -1, 1, Q("55 mm")))
sketch7.addConstraint(Sketcher.Constraint("DistanceX", 10, 2, -1, 1, Q("15 mm")))

# Sketch on XZ plane
sketch8 = body2.newObject("Sketcher::SketchObject", "Sketch007")
sketch8.AttachmentSupport = (doc.getObject("XZ_Plane001"), [""])
sketch8.MapMode = "FlatFace"
sketch8.addGeometry(Part.LineSegment(App.Vector(0, 50, 0), App.Vector(0, 51.6, 0)), False)
sketch8.addConstraint(Sketcher.Constraint("Vertical", 0))
sketch8.addConstraint(Sketcher.Constraint("PointOnObject", 0, 1, -2))
sketch8.addConstraint(Sketcher.Constraint("DistanceY", 0, 1, 0, 2, Q("1.6 mm")))
sketch8.addConstraint(Sketcher.Constraint("DistanceY", -1, 1, 0, 1, Q("50 mm")))
doc.recompute()

additivepipe3 = body2.newObject("PartDesign::AdditivePipe", "AdditivePipe002")
additivepipe3.Profile = sketch7
additivepipe3.Spine = (sketch8, ["Edge1"])

# Sketch on XY plane
sketch9 = body2.newObject("Sketcher::SketchObject", "Sketch008")
sketch9.AttachmentSupport = (doc.getObject("XY_Plane001"), [""])
sketch9.MapMode = "FlatFace"
sketch9.AttachmentOffset = App.Placement(App.Vector(0, 0, 51.6), App.Rotation())
sketch9.addGeometry(Part.ArcOfCircle(Part.Circle(App.Vector(-22.5, 0, 0), App.Vector(0, 0, 1), 1.4), math.radians(-90), math.radians(90)), False)
sketch9.addGeometry(Part.LineSegment(App.Vector(-22.5, 1.4, 0), App.Vector(-42.5, 1.4, 0)), False)
sketch9.addGeometry(Part.ArcOfCircle(Part.Circle(App.Vector(-42.5, 0, 0), App.Vector(0, 0, 1), 1.4), math.radians(90), math.radians(270)), False)
sketch9.addGeometry(Part.LineSegment(App.Vector(-42.5, -1.4, 0), App.Vector(-22.5, -1.4, 0)), False)
sketch9.addGeometry(Part.LineSegment(App.Vector(42.5, 1.4, 0), App.Vector(22.5, 1.4, 0)), False)
sketch9.addGeometry(Part.ArcOfCircle(Part.Circle(App.Vector(22.5, 0, 0), App.Vector(0, 0, 1), 1.4), math.radians(90), math.radians(270)), False)
sketch9.addGeometry(Part.LineSegment(App.Vector(22.5, -1.4, 0), App.Vector(42.5, -1.4, 0)), False)
sketch9.addGeometry(Part.ArcOfCircle(Part.Circle(App.Vector(42.5, 0, 0), App.Vector(0, 0, 1), 1.4), math.radians(-90), math.radians(90)), False)
sketch9.addConstraint(Sketcher.Constraint("Tangent", 0, 2, 1, 1))
sketch9.addConstraint(Sketcher.Constraint("Tangent", 1, 2, 2, 1))
sketch9.addConstraint(Sketcher.Constraint("Tangent", 2, 2, 3, 1))
sketch9.addConstraint(Sketcher.Constraint("Tangent", 3, 2, 0, 1))
sketch9.addConstraint(Sketcher.Constraint("Tangent", 4, 2, 5, 1))
sketch9.addConstraint(Sketcher.Constraint("Tangent", 5, 2, 6, 1))
sketch9.addConstraint(Sketcher.Constraint("Tangent", 6, 2, 7, 1))
sketch9.addConstraint(Sketcher.Constraint("Tangent", 7, 2, 4, 1))
sketch9.addConstraint(Sketcher.Constraint("Horizontal", 1))
sketch9.addConstraint(Sketcher.Constraint("Horizontal", 3))
sketch9.addConstraint(Sketcher.Constraint("Horizontal", 4))
sketch9.addConstraint(Sketcher.Constraint("Horizontal", 6))
sketch9.addConstraint(Sketcher.Constraint("Equal", 2, 5))
sketch9.addConstraint(Sketcher.Constraint("Symmetric", 0, 3, 5, 3, -1, 1))
sketch9.addConstraint(Sketcher.Constraint("Symmetric", 2, 3, 7, 3, -2))
sketch9.addConstraint(Sketcher.Constraint("DistanceX", 1, 2, 1, 1, Q("20 mm")))
sketch9.addConstraint(Sketcher.Constraint("Radius", 0, Q("1.35 mm")))
sketch9.addConstraint(Sketcher.Constraint("DistanceX", 0, 3, 5, 3, Q("45 mm")))
pocket1 = body2.newObject("PartDesign::Pocket", "Pocket")
pocket1.Profile = sketch9
pocket1.Type = "ThroughAll"

# Sketch on XY plane
sketch10 = body2.newObject("Sketcher::SketchObject", "Sketch009")
sketch10.AttachmentSupport = (doc.getObject("XY_Plane001"), [""])
sketch10.MapMode = "FlatFace"
sketch10.AttachmentOffset = App.Placement(App.Vector(0, 0, 51.6), App.Rotation())
sketch10.addGeometry(Part.ArcOfCircle(Part.Circle(App.Vector(-22.5, 0, 0), App.Vector(0, 0, 1), 3), math.radians(-90), math.radians(90)), False)
sketch10.addGeometry(Part.LineSegment(App.Vector(-22.5, 3, 0), App.Vector(-42.5, 3, 0)), False)
sketch10.addGeometry(Part.ArcOfCircle(Part.Circle(App.Vector(-42.5, 0, 0), App.Vector(0, 0, 1), 3), math.radians(90), math.radians(270)), False)
sketch10.addGeometry(Part.LineSegment(App.Vector(-42.5, -3, 0), App.Vector(-22.5, -3, 0)), False)
sketch10.addGeometry(Part.ArcOfCircle(Part.Circle(App.Vector(-42.5, 0, 0), App.Vector(0, 0, 1), 1.4), math.radians(90), math.radians(270)), False)
sketch10.addGeometry(Part.LineSegment(App.Vector(-42.5, 1.4, 0), App.Vector(-22.5, 1.4, 0)), False)
sketch10.addGeometry(Part.ArcOfCircle(Part.Circle(App.Vector(-22.5, 0, 0), App.Vector(0, 0, 1), 1.4), math.radians(-90), math.radians(90)), False)
sketch10.addGeometry(Part.LineSegment(App.Vector(-22.5, -1.4, 0), App.Vector(-42.5, -1.4, 0)), False)
sketch10.addGeometry(Part.LineSegment(App.Vector(42.5, 3, 0), App.Vector(22.5, 3, 0)), False)
sketch10.addGeometry(Part.ArcOfCircle(Part.Circle(App.Vector(22.5, 0, 0), App.Vector(0, 0, 1), 3), math.radians(90), math.radians(270)), False)
sketch10.addGeometry(Part.LineSegment(App.Vector(22.5, -3, 0), App.Vector(42.5, -3, 0)), False)
sketch10.addGeometry(Part.ArcOfCircle(Part.Circle(App.Vector(42.5, 0, 0), App.Vector(0, 0, 1), 3), math.radians(-90), math.radians(90)), False)
sketch10.addGeometry(Part.LineSegment(App.Vector(42.5, -1.4, 0), App.Vector(22.5, -1.4, 0)), False)
sketch10.addGeometry(Part.ArcOfCircle(Part.Circle(App.Vector(22.5, 0, 0), App.Vector(0, 0, 1), 1.4), math.radians(90), math.radians(270)), False)
sketch10.addGeometry(Part.LineSegment(App.Vector(22.5, 1.4, 0), App.Vector(42.5, 1.4, 0)), False)
sketch10.addGeometry(Part.ArcOfCircle(Part.Circle(App.Vector(42.5, 0, 0), App.Vector(0, 0, 1), 1.4), math.radians(-90), math.radians(90)), False)
sketch10.addConstraint(Sketcher.Constraint("Tangent", 0, 2, 1, 1))
sketch10.addConstraint(Sketcher.Constraint("Tangent", 1, 2, 2, 1))
sketch10.addConstraint(Sketcher.Constraint("Tangent", 2, 2, 3, 1))
sketch10.addConstraint(Sketcher.Constraint("Tangent", 3, 2, 0, 1))
sketch10.addConstraint(Sketcher.Constraint("Tangent", 4, 1, 5, 1))
sketch10.addConstraint(Sketcher.Constraint("Tangent", 5, 2, 6, 2))
sketch10.addConstraint(Sketcher.Constraint("Tangent", 6, 1, 7, 1))
sketch10.addConstraint(Sketcher.Constraint("Tangent", 7, 2, 4, 2))
sketch10.addConstraint(Sketcher.Constraint("Tangent", 8, 2, 9, 1))
sketch10.addConstraint(Sketcher.Constraint("Tangent", 9, 2, 10, 1))
sketch10.addConstraint(Sketcher.Constraint("Tangent", 10, 2, 11, 1))
sketch10.addConstraint(Sketcher.Constraint("Tangent", 11, 2, 8, 1))
sketch10.addConstraint(Sketcher.Constraint("Tangent", 12, 2, 13, 2))
sketch10.addConstraint(Sketcher.Constraint("Tangent", 13, 1, 14, 1))
sketch10.addConstraint(Sketcher.Constraint("Tangent", 14, 2, 15, 2))
sketch10.addConstraint(Sketcher.Constraint("Tangent", 15, 1, 12, 1))
sketch10.addConstraint(Sketcher.Constraint("Horizontal", 1))
sketch10.addConstraint(Sketcher.Constraint("Horizontal", 3))
sketch10.addConstraint(Sketcher.Constraint("Horizontal", 5))
sketch10.addConstraint(Sketcher.Constraint("Horizontal", 7))
sketch10.addConstraint(Sketcher.Constraint("Horizontal", 8))
sketch10.addConstraint(Sketcher.Constraint("Horizontal", 10))
sketch10.addConstraint(Sketcher.Constraint("Horizontal", 12))
sketch10.addConstraint(Sketcher.Constraint("Horizontal", 14))
sketch10.addConstraint(Sketcher.Constraint("Coincident", 4, 3, 2, 3))
sketch10.addConstraint(Sketcher.Constraint("Coincident", 13, 3, 9, 3))
sketch10.addConstraint(Sketcher.Constraint("Equal", 2, 9))
sketch10.addConstraint(Sketcher.Constraint("Equal", 6, 13))
sketch10.addConstraint(Sketcher.Constraint("Symmetric", 0, 3, 9, 3, -1, 1))
sketch10.addConstraint(Sketcher.Constraint("Symmetric", 2, 3, 11, 3, -2))
sketch10.addConstraint(Sketcher.Constraint("Vertical", 6, 3, 0, 2))
sketch10.addConstraint(Sketcher.Constraint("Vertical", 15, 3, 10, 2))
sketch10.addConstraint(Sketcher.Constraint("Radius", 0, Q("3 mm")))
sketch10.addConstraint(Sketcher.Constraint("DistanceX", 1, 2, 1, 1, Q("20 mm")))
sketch10.addConstraint(Sketcher.Constraint("Radius", 4, Q("1.35 mm")))
sketch10.addConstraint(Sketcher.Constraint("DistanceX", 0, 3, 9, 3, Q("45 mm")))
pocket2 = body2.newObject("PartDesign::Pocket", "Pocket001")
pocket2.Profile = sketch10
pocket2.Length = 0.8

doc.recompute()
